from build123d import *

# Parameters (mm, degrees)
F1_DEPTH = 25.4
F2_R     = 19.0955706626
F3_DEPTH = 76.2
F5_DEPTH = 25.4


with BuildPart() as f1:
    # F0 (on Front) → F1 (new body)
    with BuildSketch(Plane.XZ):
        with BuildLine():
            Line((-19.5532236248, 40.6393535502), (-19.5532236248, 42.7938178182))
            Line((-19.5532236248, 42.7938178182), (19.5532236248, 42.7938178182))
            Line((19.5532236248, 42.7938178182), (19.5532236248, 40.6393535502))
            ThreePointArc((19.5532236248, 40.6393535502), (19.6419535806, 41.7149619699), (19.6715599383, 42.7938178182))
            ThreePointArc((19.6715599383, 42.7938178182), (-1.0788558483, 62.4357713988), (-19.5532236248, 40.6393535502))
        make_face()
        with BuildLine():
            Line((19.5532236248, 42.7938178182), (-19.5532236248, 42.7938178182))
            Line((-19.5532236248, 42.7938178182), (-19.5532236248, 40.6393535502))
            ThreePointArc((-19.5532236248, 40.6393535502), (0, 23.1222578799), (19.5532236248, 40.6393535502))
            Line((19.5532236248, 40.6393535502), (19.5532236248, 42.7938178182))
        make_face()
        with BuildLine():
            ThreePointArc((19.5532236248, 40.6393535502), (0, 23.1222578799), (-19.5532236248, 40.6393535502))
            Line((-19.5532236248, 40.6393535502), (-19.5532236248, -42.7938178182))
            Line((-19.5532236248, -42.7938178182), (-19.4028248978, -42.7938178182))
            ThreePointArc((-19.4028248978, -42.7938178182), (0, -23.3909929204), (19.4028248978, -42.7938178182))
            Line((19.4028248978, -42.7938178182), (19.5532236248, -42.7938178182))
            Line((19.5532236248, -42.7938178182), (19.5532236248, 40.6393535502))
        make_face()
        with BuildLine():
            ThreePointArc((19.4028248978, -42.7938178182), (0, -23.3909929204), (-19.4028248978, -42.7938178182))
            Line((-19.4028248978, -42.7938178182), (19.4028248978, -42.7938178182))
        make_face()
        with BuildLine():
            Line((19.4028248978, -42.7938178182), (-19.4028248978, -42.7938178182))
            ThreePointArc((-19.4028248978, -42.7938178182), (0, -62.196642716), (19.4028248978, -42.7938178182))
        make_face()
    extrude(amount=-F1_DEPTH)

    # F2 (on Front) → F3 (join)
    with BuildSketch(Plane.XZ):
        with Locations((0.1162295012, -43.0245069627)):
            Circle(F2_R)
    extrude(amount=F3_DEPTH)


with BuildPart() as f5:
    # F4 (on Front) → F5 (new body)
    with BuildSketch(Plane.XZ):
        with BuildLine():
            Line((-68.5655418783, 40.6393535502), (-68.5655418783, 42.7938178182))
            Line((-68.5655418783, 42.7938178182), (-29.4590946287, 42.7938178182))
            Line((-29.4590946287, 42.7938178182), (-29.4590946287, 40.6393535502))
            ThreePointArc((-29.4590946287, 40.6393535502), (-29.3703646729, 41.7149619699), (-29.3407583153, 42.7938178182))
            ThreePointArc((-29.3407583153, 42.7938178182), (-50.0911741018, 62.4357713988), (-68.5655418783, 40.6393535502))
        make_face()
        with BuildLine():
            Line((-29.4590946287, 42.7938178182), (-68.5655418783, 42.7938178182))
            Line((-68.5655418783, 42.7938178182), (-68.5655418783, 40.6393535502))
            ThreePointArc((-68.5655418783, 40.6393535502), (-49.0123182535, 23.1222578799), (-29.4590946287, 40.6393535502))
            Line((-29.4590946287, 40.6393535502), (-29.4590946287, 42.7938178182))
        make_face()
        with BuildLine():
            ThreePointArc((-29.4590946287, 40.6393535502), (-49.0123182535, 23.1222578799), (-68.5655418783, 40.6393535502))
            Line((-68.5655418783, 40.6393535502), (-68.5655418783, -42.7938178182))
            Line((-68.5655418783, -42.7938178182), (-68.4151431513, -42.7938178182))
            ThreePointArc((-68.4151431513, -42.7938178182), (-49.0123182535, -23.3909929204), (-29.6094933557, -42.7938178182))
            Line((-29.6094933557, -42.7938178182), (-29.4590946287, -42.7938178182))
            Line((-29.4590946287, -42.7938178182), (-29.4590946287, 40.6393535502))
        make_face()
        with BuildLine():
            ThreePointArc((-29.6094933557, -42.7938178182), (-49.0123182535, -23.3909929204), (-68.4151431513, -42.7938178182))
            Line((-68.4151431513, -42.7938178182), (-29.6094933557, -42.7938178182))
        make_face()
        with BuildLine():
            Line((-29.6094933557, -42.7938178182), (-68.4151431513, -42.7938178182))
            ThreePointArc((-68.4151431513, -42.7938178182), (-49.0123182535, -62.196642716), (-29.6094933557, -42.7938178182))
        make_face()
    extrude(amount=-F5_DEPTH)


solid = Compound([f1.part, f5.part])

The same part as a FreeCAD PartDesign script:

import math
import FreeCAD as App
import Part
import Sketcher
Q = App.Units.Quantity

doc = App.newDocument("Part")
body = doc.addObject("PartDesign::Body", "Body")

# Sketch on XZ plane
sketch1 = body.newObject("Sketcher::SketchObject", "Sketch")
sketch1.AttachmentSupport = (doc.getObject("XZ_Plane"), [""])
sketch1.MapMode = "FlatFace"
sketch1.addGeometry(Part.ArcOfCircle(Part.Circle(App.Vector(0, 42.793818, 0), App.Vector(0, 0, 1), 19.67156), math.radians(-6.287749), math.radians(0)), False)
sketch1.addGeometry(Part.ArcOfCircle(Part.Circle(App.Vector(0, 42.793818, 0), App.Vector(0, 0, 1), 19.67156), math.radians(0), math.radians(186.287749)), False)
sketch1.addGeometry(Part.LineSegment(App.Vector(-19.553224, 40.639354, 0), App.Vector(-19.553224, -42.793818, 0)), False)
sketch1.addGeometry(Part.LineSegment(App.Vector(-19.553224, -42.793818, 0), App.Vector(-19.402825, -42.793818, 0)), False)
sketch1.addGeometry(Part.ArcOfCircle(Part.Circle(App.Vector(0, -42.793818, 0), App.Vector(0, 0, 1), 19.402825), math.radians(180), math.radians(360)), False)
sketch1.addGeometry(Part.LineSegment(App.Vector(19.402825, -42.793818, 0), App.Vector(19.553224, -42.793818, 0)), False)
sketch1.addGeometry(Part.LineSegment(App.Vector(19.553224, -42.793818, 0), App.Vector(19.553224, 40.639354, 0)), False)
sketch1.addConstraint(Sketcher.Constraint("Tangent", 0, 2, 1, 1))
sketch1.addConstraint(Sketcher.Constraint("Coincident", 1, 2, 2, 1))
sketch1.addConstraint(Sketcher.Constraint("Coincident", 2, 2, 3, 1))
sketch1.addConstraint(Sketcher.Constraint("Coincident", 3, 2, 4, 1))
sketch1.addConstraint(Sketcher.Constraint("Coincident", 4, 2, 5, 1))
sketch1.addConstraint(Sketcher.Constraint("Coincident", 5, 2, 6, 1))
sketch1.addConstraint(Sketcher.Constraint("Coincident", 6, 2, 0, 1))
sketch1.addConstraint(Sketcher.Constraint("Vertical", 2))
sketch1.addConstraint(Sketcher.Constraint("Horizontal", 3))
sketch1.addConstraint(Sketcher.Constraint("Horizontal", 5))
sketch1.addConstraint(Sketcher.Constraint("Vertical", 6))
sketch1.addConstraint(Sketcher.Constraint("Equal", 0, 1))
sketch1.addConstraint(Sketcher.Constraint("Symmetric", 0, 3, 4, 3, -1, 1))
sketch1.addConstraint(Sketcher.Constraint("Symmetric", 3, 2, 4, 2, -2))
sketch1.addConstraint(Sketcher.Constraint("Horizontal", 1, 3, 0, 2))
sketch1.addConstraint(Sketcher.Constraint("Horizontal", 4, 3, 2, 2))
sketch1.addConstraint(Sketcher.Constraint("Horizontal", 1, 2, 6, 2))
sketch1.addConstraint(Sketcher.Constraint("Radius", 0, 19.67156))
sketch1.addConstraint(Sketcher.Constraint("DistanceX", 3, 1, 3, 2, 0.150399))
sketch1.addConstraint(Sketcher.Constraint("Radius", 4, 19.402825))
sketch1.addConstraint(Sketcher.Constraint("DistanceY", 2, 2, 2, 1, 83.433171))
pad1 = body.newObject("PartDesign::Pad", "Pad")
pad1.Profile = sketch1
pad1.Length = Q("1 in")
pad1.Reversed = True

# Sketch on XZ plane
sketch2 = body.newObject("Sketcher::SketchObject", "Sketch001")
sketch2.AttachmentSupport = (doc.getObject("XZ_Plane"), [""])
sketch2.MapMode = "FlatFace"
sketch2.addGeometry(Part.Circle(App.Vector(0.11623, -43.024507, 0), App.Vector(0, 0, 1), 19.095571), False)
sketch2.addConstraint(Sketcher.Constraint("Diameter", 0, 38.191141))
sketch2.addConstraint(Sketcher.Constraint("DistanceX", -1, 1, 0, 3, 0.11623))
sketch2.addConstraint(Sketcher.Constraint("DistanceY", 0, 3, -1, 1, 43.024507))
pad2 = body.newObject("PartDesign::Pad", "Pad001")
pad2.Profile = sketch2
pad2.Length = Q("3 in")
body2 = doc.addObject("PartDesign::Body", "Body001")

# Sketch on XZ plane
sketch3 = body2.newObject("Sketcher::SketchObject", "Sketch002")
sketch3.AttachmentSupport = (doc.getObject("XZ_Plane001"), [""])
sketch3.MapMode = "FlatFace"
sketch3.addGeometry(Part.ArcOfCircle(Part.Circle(App.Vector(-49.012318, 42.793818, 0), App.Vector(0, 0, 1), 19.67156), math.radians(-6.287749), math.radians(0)), False)
sketch3.addGeometry(Part.ArcOfCircle(Part.Circle(App.Vector(-49.012318, 42.793818, 0), App.Vector(0, 0, 1), 19.67156), math.radians(0), math.radians(186.287749)), False)
sketch3.addGeometry(Part.LineSegment(App.Vector(-68.565542, 40.639354, 0), App.Vector(-68.565542, -42.793818, 0)), False)
sketch3.addGeometry(Part.LineSegment(App.Vector(-68.565542, -42.793818, 0), App.Vector(-68.415143, -42.793818, 0)), False)
sketch3.addGeometry(Part.ArcOfCircle(Part.Circle(App.Vector(-49.012318, -42.793818, 0), App.Vector(0, 0, 1), 19.402825), math.radians(180), math.radians(360)), False)
sketch3.addGeometry(Part.LineSegment(App.Vector(-29.609493, -42.793818, 0), App.Vector(-29.459095, -42.793818, 0)), False)
sketch3.addGeometry(Part.LineSegment(App.Vector(-29.459095, -42.793818, 0), App.Vector(-29.459095, 40.639354, 0)), False)
sketch3.addConstraint(Sketcher.Constraint("Tangent", 0, 2, 1, 1))
sketch3.addConstraint(Sketcher.Constraint("Coincident", 1, 2, 2, 1))
sketch3.addConstraint(Sketcher.Constraint("Coincident", 2, 2, 3, 1))
sketch3.addConstraint(Sketcher.Constraint("Coincident", 3, 2, 4, 1))
sketch3.addConstraint(Sketcher.Constraint("Coincident", 4, 2, 5, 1))
sketch3.addConstraint(Sketcher.Constraint("Coincident", 5, 2, 6, 1))
sketch3.addConstraint(Sketcher.Constraint("Coincident", 6, 2, 0, 1))
sketch3.addConstraint(Sketcher.Constraint("Vertical", 2))
sketch3.addConstraint(Sketcher.Constraint("Horizontal", 3))
sketch3.addConstraint(Sketcher.Constraint("Horizontal", 5))
sketch3.addConstraint(Sketcher.Constraint("Vertical", 6))
sketch3.addConstraint(Sketcher.Constraint("Equal", 0, 1))
sketch3.addConstraint(Sketcher.Constraint("Symmetric", 0, 3, 4, 3, -1))
sketch3.addConstraint(Sketcher.Constraint("Horizontal", 1, 3, 0, 2))
sketch3.addConstraint(Sketcher.Constraint("Horizontal", 4, 3, 2, 2))
sketch3.addConstraint(Sketcher.Constraint("Horizontal", 3, 2, 4, 2))
sketch3.addConstraint(Sketcher.Constraint("Horizontal", 1, 2, 6, 2))
sketch3.addConstraint(Sketcher.Constraint("Radius", 0, 19.67156))
sketch3.addConstraint(Sketcher.Constraint("DistanceX", 3, 1, 3, 2, 0.150399))
sketch3.addConstraint(Sketcher.Constraint("Radius", 4, 19.402825))
sketch3.addConstraint(Sketcher.Constraint("DistanceY", 2, 2, 2, 1, 83.433171))
sketch3.addConstraint(Sketcher.Constraint("DistanceX", 0, 3, -1, 1, 49.012318))
pad3 = body2.newObject("PartDesign::Pad", "Pad002")
pad3.Profile = sketch3
pad3.Length = Q("1 in")
pad3.Reversed = True

doc.recompute()
